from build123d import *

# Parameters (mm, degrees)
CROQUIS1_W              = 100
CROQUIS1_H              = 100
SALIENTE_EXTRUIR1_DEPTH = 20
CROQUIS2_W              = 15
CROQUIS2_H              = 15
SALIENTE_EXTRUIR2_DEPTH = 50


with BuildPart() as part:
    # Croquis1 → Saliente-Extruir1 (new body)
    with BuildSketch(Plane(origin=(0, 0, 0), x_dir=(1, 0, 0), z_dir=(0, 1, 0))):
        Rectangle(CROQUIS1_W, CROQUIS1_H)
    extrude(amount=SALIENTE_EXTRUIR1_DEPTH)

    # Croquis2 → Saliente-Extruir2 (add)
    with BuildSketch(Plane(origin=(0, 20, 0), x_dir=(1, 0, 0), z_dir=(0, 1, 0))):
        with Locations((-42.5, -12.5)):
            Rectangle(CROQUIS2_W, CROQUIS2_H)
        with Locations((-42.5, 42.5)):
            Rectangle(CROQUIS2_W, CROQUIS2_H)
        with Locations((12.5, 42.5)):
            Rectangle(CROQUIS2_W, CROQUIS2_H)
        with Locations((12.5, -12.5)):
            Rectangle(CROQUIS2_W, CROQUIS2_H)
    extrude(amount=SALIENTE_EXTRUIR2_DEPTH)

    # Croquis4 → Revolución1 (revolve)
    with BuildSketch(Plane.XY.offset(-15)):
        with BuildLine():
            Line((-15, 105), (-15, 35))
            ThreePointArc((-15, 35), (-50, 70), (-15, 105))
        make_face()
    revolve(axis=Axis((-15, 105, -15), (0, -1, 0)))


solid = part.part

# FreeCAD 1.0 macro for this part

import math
import FreeCAD as App
import Part
import Sketcher
from FreeCAD import Vector


def add_polygon(sketch, points):
    """Adds a closed chain of lines whose ends are joined by coincident constraints."""
    first, n = sketch.GeometryCount, len(points)
    for a, b in zip(points, points[1:] + points[:1]):
        sketch.addGeometry(Part.LineSegment(App.Vector(*a, 0), App.Vector(*b, 0)), False)
    for i in range(n):
        sketch.addConstraint(Sketcher.Constraint("Coincident", first + i, 2, first + (i + 1) % n, 1))

doc = App.newDocument("Part")
body = doc.addObject("PartDesign::Body", "Body")

# Sketch on XZ plane
sketch1 = doc.addObject("Sketcher::SketchObject", "Sketch")
body.addObject(sketch1)
sketch1.AttachmentSupport = (doc.XZ_Plane, [""])
sketch1.MapMode = "FlatFace"
add_polygon(sketch1, [(-50, -50), (-50, 50), (50, 50), (50, -50)])  # lines 0-3
sketch1.addConstraint([
    Sketcher.Constraint("Vertical", 0),
    Sketcher.Constraint("Horizontal", 1),
    Sketcher.Constraint("Vertical", 2),
    Sketcher.Constraint("Horizontal", 3),
    Sketcher.Constraint("Symmetric", 0, 2, 2, 2, -1, 1),
    Sketcher.Constraint("Equal", 3, 0),
    Sketcher.Constraint("DistanceX", 1, 1, 1, 2, 100.0),
])
pad1 = doc.addObject("PartDesign::Pad", "Pad")
body.addObject(pad1)
pad1.Profile = sketch1
pad1.Length = 20
pad1.Reversed = True

# Sketch on XZ plane
sketch2 = doc.addObject("Sketcher::SketchObject", "Sketch001")
body.addObject(sketch2)
sketch2.AttachmentSupport = (doc.XZ_Plane, [""])
sketch2.MapMode = "FlatFace"
sketch2.AttachmentOffset = App.Placement(Vector(0, 0, -20), App.Rotation())
add_polygon(sketch2, [(-50, 5), (-50, 20), (-35, 20), (-35, 5)])  # lines 0-3
add_polygon(sketch2, [(-50, -50), (-50, -35), (-35, -35), (-35, -50)])  # lines 4-7
add_polygon(sketch2, [(5, -50), (5, -35), (20, -35), (20, -50)])  # lines 8-11
add_polygon(sketch2, [(5, 5), (5, 20), (20, 20), (20, 5)])  # lines 12-15
sketch2.addConstraint([
    Sketcher.Constraint("Vertical", 0),
    Sketcher.Constraint("Horizontal", 1),
    Sketcher.Constraint("Vertical", 2),
    Sketcher.Constraint("Horizontal", 3),
    Sketcher.Constraint("Vertical", 4),
    Sketcher.Constraint("Horizontal", 5),
    Sketcher.Constraint("Vertical", 6),
    Sketcher.Constraint("Horizontal", 7),
    Sketcher.Constraint("Vertical", 8),
    Sketcher.Constraint("Horizontal", 9),
    Sketcher.Constraint("Vertical", 10),
    Sketcher.Constraint("Horizontal", 11),
    Sketcher.Constraint("Vertical", 12),
    Sketcher.Constraint("Horizontal", 13),
    Sketcher.Constraint("Vertical", 14),
    Sketcher.Constraint("Horizontal", 15),
    Sketcher.Constraint("Horizontal", 5, 2, 8, 2),
    Sketcher.Constraint("Horizontal", 7, 2, 10, 2),
    Sketcher.Constraint("Horizontal", 1, 2, 12, 2),
    Sketcher.Constraint("Horizontal", 3, 2, 14, 2),
    Sketcher.Constraint("Vertical", 3, 2, 4, 2),
    Sketcher.Constraint("Vertical", 2, 2, 5, 2),
    Sketcher.Constraint("Vertical", 11, 2, 12, 2),
    Sketcher.Constraint("Vertical", 10, 2, 13, 2),
    Sketcher.Constraint("Equal", 7, 9),
    Sketcher.Constraint("Equal", 15, 0),
    Sketcher.Constraint("Equal", 2, 4),
    Sketcher.Constraint("DistanceX", 1, 1, 1, 2, 15.0),
    Sketcher.Constraint("DistanceX", 0, 2, -1, 1, 50.0),
    Sketcher.Constraint("DistanceY", -1, 1, 0, 2, 20.0),
    Sketcher.Constraint("DistanceY", 4, 2, -1, 1, 35.0),
    Sketcher.Constraint("DistanceX", -1, 1, 8, 2, 5.0),
])
pad2 = doc.addObject("PartDesign::Pad", "Pad001")
body.addObject(pad2)
pad2.Profile = sketch2
pad2.Length = 50
pad2.Reversed = True

# Sketch on XY plane
sketch3 = doc.addObject("Sketcher::SketchObject", "Sketch002")
body.addObject(sketch3)
sketch3.AttachmentSupport = (doc.XY_Plane, [""])
sketch3.MapMode = "FlatFace"
sketch3.AttachmentOffset = App.Placement(Vector(0, 0, -15), App.Rotation())
sketch3.addGeometry([
    Part.LineSegment(Vector(-15, 35, 0), Vector(-15, 105, 0)),
    Part.ArcOfCircle(Part.Circle(Vector(-15, 70, 0), Vector(0, 0, 1), 35), math.radians(90), math.radians(270)),
], False)
sketch3.addGeometry(Part.LineSegment(Vector(-15, 105, 0), Vector(-15, 35, 0)), True)  # axis
sketch3.addConstraint([
    Sketcher.Constraint("Coincident", 0, 1, 1, 2),
    Sketcher.Constraint("Coincident", 1, 1, 0, 2),
    Sketcher.Constraint("Vertical", 0),
    Sketcher.Constraint("Vertical", 2),
    Sketcher.Constraint("Coincident", 2, 1, 1, 1),
    Sketcher.Constraint("Vertical", 1, 3, 0, 1),
    Sketcher.Constraint("Equal", 0, 2),
    Sketcher.Constraint("Radius", 1, 35.0),
    Sketcher.Constraint("DistanceX", 1, 3, -1, 1, 15.0),
    Sketcher.Constraint("DistanceY", -1, 1, 1, 3, 70.0),
])
revolution = doc.addObject("PartDesign::Revolution", "Revolution")
body.addObject(revolution)
revolution.Profile = sketch3
revolution.ReferenceAxis = (sketch3, ["Axis0"])
revolution.Angle = 360

doc.recompute()
